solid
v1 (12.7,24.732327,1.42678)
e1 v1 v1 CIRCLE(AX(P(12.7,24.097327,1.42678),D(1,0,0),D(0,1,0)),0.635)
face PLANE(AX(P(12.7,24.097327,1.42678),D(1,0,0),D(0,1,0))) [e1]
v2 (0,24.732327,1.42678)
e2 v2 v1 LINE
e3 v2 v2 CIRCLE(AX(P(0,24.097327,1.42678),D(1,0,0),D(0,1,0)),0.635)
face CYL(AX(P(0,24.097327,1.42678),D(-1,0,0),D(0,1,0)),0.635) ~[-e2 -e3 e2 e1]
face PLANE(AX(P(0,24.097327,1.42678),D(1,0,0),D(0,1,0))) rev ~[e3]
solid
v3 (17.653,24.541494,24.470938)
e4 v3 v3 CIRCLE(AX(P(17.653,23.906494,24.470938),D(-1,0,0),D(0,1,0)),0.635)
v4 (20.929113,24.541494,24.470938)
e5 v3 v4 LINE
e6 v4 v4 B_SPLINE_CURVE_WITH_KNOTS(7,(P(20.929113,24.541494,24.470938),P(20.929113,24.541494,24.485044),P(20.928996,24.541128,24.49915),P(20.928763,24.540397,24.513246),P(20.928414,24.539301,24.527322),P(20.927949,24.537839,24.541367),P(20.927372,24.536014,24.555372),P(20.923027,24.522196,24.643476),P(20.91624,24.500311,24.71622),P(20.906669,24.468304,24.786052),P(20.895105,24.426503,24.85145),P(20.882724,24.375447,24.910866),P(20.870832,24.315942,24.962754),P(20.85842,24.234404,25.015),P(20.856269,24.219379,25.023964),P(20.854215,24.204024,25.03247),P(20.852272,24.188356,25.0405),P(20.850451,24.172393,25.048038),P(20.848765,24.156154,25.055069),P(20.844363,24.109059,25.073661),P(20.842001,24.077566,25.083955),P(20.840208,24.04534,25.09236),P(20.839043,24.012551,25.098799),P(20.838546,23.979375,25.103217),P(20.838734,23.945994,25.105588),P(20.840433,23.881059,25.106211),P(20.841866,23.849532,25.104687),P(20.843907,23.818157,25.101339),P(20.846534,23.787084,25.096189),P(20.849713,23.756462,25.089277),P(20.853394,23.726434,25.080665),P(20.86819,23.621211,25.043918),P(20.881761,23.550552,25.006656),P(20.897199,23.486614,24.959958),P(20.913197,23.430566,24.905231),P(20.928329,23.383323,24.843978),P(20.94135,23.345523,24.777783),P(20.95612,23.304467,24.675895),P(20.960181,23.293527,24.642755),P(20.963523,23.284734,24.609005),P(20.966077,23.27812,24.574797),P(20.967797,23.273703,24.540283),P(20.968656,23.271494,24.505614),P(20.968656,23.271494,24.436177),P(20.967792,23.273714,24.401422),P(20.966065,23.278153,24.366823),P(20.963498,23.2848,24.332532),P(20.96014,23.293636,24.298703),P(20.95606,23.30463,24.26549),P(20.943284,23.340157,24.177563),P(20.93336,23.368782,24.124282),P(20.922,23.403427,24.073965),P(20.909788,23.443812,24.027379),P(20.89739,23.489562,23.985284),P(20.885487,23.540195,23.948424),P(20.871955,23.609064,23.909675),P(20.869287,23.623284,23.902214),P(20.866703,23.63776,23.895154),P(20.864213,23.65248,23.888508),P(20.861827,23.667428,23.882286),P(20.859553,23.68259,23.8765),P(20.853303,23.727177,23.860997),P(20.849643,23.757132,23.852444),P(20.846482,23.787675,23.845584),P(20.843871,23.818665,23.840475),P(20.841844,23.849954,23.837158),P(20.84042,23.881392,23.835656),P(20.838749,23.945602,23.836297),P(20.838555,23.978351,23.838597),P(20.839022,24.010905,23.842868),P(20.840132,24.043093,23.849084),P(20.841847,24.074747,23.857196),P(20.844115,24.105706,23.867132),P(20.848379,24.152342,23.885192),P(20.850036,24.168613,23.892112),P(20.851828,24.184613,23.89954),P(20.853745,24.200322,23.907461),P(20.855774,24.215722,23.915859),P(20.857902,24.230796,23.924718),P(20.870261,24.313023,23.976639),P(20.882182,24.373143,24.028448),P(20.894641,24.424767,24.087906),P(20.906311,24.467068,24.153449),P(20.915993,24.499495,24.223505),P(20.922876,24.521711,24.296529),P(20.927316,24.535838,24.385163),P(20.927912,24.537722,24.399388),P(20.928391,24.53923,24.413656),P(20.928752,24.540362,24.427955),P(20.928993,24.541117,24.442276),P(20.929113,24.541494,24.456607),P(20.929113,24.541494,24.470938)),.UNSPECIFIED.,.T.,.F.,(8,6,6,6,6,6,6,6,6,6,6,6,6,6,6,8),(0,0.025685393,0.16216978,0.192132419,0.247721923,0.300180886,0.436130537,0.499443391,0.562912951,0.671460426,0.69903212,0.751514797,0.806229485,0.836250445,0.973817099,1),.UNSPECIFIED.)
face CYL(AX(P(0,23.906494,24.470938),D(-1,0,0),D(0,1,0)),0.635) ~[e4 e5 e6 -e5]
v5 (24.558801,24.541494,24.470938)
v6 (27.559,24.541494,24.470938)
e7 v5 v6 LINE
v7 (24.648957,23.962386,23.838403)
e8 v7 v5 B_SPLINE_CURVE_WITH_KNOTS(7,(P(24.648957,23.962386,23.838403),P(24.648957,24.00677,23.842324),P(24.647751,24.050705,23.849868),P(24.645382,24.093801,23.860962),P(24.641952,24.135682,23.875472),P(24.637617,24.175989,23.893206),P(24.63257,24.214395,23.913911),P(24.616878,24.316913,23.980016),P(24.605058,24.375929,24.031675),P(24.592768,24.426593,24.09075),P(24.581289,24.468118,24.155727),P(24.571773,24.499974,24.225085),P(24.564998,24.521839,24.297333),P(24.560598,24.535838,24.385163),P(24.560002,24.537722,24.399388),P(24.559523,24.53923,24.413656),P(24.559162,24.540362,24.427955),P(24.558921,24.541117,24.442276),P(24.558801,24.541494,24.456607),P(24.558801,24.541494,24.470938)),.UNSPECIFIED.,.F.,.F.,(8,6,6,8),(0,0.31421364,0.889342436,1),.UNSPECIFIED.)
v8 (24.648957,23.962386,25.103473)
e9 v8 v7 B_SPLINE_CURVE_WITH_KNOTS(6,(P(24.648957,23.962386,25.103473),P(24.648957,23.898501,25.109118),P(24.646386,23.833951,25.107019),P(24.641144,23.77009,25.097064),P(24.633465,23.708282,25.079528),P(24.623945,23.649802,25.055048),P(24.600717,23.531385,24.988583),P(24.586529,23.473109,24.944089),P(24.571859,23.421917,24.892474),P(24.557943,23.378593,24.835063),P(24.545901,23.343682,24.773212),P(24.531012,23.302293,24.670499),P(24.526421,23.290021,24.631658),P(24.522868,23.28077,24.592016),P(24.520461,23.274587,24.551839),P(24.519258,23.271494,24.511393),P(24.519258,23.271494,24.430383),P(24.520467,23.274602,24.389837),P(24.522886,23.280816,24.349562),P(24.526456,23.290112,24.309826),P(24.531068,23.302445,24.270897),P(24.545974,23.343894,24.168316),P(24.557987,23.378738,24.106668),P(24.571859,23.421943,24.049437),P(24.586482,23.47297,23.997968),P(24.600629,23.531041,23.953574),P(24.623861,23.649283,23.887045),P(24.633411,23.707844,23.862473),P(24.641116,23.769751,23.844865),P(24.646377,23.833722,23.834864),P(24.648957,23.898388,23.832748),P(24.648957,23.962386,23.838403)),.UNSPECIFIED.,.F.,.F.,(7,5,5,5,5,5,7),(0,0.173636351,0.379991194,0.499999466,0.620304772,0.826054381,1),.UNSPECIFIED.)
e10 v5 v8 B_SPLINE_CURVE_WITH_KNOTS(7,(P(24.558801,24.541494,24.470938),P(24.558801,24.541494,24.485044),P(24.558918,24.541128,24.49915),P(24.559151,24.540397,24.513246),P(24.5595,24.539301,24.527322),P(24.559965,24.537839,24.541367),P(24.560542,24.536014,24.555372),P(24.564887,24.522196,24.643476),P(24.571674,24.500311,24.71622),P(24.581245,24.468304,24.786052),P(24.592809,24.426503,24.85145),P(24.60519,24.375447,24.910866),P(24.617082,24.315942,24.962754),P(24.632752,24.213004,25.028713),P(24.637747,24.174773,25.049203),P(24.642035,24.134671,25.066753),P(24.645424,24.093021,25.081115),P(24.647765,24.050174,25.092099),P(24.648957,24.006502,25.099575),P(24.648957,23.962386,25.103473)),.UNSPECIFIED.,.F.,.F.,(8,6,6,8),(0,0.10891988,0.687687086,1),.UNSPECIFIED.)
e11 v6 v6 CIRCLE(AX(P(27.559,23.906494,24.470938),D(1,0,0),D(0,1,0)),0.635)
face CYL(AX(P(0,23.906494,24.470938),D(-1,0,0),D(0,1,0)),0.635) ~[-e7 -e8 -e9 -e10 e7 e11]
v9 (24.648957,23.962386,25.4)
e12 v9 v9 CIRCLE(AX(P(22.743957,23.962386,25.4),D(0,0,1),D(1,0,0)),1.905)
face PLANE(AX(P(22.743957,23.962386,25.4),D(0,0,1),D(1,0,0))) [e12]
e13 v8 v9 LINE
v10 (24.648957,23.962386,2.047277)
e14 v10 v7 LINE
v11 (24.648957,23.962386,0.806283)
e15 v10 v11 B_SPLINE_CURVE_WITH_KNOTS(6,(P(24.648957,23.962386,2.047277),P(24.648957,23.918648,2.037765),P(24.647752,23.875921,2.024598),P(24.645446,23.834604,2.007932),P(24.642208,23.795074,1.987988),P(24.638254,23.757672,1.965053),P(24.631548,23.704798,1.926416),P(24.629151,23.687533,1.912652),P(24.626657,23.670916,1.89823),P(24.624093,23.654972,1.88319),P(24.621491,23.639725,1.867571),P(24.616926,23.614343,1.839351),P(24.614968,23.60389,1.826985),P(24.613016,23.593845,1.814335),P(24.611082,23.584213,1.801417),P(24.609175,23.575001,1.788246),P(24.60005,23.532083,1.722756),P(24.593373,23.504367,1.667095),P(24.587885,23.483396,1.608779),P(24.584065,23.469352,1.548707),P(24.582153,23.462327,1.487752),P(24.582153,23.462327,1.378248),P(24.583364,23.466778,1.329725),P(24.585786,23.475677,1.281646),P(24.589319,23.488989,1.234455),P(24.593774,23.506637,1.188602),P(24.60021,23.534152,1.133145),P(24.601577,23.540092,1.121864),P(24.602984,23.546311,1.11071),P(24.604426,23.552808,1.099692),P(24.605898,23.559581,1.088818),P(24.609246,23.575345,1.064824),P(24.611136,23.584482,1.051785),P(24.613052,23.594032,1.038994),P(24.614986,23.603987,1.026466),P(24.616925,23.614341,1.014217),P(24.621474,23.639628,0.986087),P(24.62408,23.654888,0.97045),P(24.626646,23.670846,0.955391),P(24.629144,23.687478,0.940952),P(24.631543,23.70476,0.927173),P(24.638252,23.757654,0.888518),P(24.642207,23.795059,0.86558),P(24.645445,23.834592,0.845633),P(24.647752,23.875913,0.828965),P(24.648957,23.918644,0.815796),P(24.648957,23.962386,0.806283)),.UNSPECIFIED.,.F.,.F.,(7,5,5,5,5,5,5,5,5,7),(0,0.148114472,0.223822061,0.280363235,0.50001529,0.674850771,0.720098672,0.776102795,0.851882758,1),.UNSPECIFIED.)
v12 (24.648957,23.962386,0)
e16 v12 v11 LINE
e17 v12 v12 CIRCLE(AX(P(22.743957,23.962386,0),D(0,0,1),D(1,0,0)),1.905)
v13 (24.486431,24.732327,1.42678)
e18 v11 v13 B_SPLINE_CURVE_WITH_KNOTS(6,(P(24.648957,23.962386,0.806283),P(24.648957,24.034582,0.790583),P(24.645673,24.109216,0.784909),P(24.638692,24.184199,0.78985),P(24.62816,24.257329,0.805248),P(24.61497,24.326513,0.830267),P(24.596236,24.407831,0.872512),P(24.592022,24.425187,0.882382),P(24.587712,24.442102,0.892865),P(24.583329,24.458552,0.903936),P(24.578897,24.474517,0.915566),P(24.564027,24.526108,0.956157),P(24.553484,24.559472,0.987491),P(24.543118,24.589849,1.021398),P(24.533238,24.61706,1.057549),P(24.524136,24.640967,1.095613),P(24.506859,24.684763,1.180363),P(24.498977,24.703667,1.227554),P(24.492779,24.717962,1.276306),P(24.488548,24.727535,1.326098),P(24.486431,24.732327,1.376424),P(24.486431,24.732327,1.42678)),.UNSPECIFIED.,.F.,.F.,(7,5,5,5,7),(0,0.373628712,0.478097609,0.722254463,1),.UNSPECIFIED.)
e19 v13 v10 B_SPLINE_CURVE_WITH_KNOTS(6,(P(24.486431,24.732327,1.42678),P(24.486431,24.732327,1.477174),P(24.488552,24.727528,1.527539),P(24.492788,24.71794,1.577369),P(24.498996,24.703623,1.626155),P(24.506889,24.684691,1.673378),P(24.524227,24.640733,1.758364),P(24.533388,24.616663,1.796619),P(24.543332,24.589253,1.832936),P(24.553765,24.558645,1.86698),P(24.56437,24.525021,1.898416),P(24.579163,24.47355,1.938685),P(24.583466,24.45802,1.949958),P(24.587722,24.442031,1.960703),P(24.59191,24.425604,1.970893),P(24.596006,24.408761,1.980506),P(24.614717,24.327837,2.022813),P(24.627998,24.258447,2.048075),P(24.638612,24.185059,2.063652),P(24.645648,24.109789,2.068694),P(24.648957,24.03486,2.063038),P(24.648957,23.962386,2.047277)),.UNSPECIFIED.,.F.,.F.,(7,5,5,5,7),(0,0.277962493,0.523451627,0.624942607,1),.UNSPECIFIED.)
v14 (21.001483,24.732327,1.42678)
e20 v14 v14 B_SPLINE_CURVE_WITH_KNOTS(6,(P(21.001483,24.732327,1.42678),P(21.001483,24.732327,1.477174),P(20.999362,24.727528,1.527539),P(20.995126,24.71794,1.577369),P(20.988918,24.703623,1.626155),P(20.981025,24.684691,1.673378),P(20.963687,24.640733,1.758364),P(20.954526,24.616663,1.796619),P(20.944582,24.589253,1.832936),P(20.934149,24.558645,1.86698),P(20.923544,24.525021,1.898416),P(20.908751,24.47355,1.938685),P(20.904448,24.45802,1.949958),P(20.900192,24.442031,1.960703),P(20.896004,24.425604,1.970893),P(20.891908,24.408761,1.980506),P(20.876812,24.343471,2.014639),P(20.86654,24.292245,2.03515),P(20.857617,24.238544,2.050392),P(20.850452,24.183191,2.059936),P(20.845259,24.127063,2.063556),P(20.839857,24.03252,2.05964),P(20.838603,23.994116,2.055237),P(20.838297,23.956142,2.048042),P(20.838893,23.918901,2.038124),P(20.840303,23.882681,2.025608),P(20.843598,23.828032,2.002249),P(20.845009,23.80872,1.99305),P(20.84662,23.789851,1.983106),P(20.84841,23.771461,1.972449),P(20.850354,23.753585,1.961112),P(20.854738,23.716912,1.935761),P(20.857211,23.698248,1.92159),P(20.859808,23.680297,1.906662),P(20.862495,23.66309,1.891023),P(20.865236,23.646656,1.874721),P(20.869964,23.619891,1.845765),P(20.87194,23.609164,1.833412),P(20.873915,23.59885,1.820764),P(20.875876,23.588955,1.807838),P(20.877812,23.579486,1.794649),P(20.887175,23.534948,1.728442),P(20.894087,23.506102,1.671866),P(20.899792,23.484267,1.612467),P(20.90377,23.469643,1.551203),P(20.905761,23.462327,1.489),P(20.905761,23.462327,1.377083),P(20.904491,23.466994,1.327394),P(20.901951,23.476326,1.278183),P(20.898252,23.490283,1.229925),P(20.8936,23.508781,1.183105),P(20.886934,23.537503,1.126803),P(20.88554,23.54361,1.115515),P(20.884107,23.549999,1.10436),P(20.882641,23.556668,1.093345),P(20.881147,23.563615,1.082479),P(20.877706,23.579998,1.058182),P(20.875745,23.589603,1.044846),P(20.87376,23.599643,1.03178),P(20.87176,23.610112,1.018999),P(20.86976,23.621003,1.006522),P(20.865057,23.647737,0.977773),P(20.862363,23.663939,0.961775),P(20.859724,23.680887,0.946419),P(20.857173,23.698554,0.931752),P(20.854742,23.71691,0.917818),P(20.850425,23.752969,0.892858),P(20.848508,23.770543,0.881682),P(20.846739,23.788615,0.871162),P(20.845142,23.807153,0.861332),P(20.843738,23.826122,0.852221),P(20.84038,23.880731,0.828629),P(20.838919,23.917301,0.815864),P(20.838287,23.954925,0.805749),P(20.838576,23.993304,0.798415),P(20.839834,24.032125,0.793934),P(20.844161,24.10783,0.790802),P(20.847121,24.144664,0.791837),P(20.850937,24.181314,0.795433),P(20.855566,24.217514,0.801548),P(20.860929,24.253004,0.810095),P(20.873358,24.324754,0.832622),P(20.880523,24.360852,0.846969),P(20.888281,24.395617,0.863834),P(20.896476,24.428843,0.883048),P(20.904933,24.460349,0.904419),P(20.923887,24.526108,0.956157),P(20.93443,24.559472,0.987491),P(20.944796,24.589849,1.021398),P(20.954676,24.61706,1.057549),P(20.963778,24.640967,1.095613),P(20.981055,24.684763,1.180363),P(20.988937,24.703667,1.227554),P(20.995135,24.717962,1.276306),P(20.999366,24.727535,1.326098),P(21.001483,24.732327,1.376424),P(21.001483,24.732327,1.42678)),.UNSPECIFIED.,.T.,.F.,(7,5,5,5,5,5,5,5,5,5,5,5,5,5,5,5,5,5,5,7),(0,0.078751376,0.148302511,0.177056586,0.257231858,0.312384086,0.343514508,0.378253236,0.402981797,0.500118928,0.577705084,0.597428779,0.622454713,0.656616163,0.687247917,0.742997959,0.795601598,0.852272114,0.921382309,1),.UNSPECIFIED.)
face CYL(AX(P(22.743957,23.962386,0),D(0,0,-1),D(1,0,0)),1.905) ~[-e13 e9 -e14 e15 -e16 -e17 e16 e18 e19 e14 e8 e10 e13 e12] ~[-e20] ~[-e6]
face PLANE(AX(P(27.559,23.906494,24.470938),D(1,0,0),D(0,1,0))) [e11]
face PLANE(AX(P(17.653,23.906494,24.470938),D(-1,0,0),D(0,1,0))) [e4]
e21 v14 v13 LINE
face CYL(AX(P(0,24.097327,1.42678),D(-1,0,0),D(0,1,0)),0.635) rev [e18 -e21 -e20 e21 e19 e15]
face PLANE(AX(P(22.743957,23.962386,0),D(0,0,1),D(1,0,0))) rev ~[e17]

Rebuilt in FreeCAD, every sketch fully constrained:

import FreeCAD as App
import Part
import Sketcher

V = App.Vector
Q = App.Units.Quantity

doc = App.newDocument("Part")
body = doc.addObject("PartDesign::Body", "Body")

# Sketch on XY plane
sketch1 = body.newObject("Sketcher::SketchObject", "Sketch")
sketch1.AttachmentSupport = (doc.getObject("XY_Plane"), [""])
sketch1.MapMode = "FlatFace"
sketch1.addGeometry(Part.Circle(V(22.743957, 23.962386, 0), V(0, 0, 1), 1.905), False)
sketch1.addConstraint([
    Sketcher.Constraint("Diameter", 0, Q("0.15 in")),
    Sketcher.Constraint("DistanceX", -1, 1, 0, 3, 22.743957),
    Sketcher.Constraint("DistanceY", -1, 1, 0, 3, 23.962386),
])
pad1 = body.newObject("PartDesign::Pad", "Pad")
pad1.Profile = sketch1
pad1.Length = Q("1 in")

# Sketch on YZ plane
sketch2 = body.newObject("Sketcher::SketchObject", "Sketch001")
sketch2.AttachmentSupport = (doc.getObject("YZ_Plane"), [""])
sketch2.MapMode = "FlatFace"
sketch2.addGeometry(Part.Circle(V(23.906494, 24.470938, 0), V(0, 0, 1), 0.635), False)
sketch2.addConstraint([
    Sketcher.Constraint("Diameter", 0, Q("0.05 in")),
    Sketcher.Constraint("DistanceY", -1, 1, 0, 3, 24.470938),
    Sketcher.Constraint("DistanceX", -1, 1, 0, 3, 23.906494),
])
pad2 = body.newObject("PartDesign::Pad", "Pad001")
pad2.Profile = sketch2
pad2.Length = Q("1.085 in")

# Sketch on YZ plane
sketch3 = body.newObject("Sketcher::SketchObject", "Sketch002")
sketch3.AttachmentSupport = (doc.getObject("YZ_Plane"), [""])
sketch3.MapMode = "FlatFace"
sketch3.addGeometry(Part.Circle(V(23.906494, 24.470938, 0), V(0, 0, 1), 0.635), False)
sketch3.addConstraint([
    Sketcher.Constraint("Diameter", 0, Q("0.05 in")),
    Sketcher.Constraint("DistanceY", -1, 1, 0, 3, 24.470938),
    Sketcher.Constraint("DistanceX", -1, 1, 0, 3, 23.906494),
])
pocket1 = body.newObject("PartDesign::Pocket", "Pocket")
pocket1.Profile = sketch3
pocket1.Length = Q("0.695 in")
pocket1.Reversed = True

# Sketch on YZ plane
sketch4 = body.newObject("Sketcher::SketchObject", "Sketch003")
sketch4.AttachmentSupport = (doc.getObject("YZ_Plane"), [""])
sketch4.MapMode = "FlatFace"
sketch4.addGeometry(Part.Circle(V(24.097327, 1.42678, 0), V(0, 0, 1), 0.635), False)
sketch4.addConstraint([
    Sketcher.Constraint("Diameter", 0, Q("0.05 in")),
    Sketcher.Constraint("DistanceY", -1, 1, 0, 3, 1.42678),
    Sketcher.Constraint("DistanceX", -1, 1, 0, 3, 24.097327),
])
pocket2 = body.newObject("PartDesign::Pocket", "Pocket001")
pocket2.Profile = sketch4
pocket2.Length = Q("1.82 in")
pocket2.Reversed = True
body2 = doc.addObject("PartDesign::Body", "Body001")

# Sketch on YZ plane
sketch5 = body2.newObject("Sketcher::SketchObject", "Sketch004")
sketch5.AttachmentSupport = (doc.getObject("YZ_Plane001"), [""])
sketch5.MapMode = "FlatFace"
sketch5.addGeometry(Part.Circle(V(24.097327, 1.42678, 0), V(0, 0, 1), 0.635), False)
sketch5.addConstraint([
    Sketcher.Constraint("Diameter", 0, Q("0.05 in")),
    Sketcher.Constraint("DistanceY", -1, 1, 0, 3, 1.42678),
    Sketcher.Constraint("DistanceX", -1, 1, 0, 3, 24.097327),
])
pad3 = body2.newObject("PartDesign::Pad", "Pad002")
pad3.Profile = sketch5
pad3.Length = Q("0.5 in")

doc.recompute()
